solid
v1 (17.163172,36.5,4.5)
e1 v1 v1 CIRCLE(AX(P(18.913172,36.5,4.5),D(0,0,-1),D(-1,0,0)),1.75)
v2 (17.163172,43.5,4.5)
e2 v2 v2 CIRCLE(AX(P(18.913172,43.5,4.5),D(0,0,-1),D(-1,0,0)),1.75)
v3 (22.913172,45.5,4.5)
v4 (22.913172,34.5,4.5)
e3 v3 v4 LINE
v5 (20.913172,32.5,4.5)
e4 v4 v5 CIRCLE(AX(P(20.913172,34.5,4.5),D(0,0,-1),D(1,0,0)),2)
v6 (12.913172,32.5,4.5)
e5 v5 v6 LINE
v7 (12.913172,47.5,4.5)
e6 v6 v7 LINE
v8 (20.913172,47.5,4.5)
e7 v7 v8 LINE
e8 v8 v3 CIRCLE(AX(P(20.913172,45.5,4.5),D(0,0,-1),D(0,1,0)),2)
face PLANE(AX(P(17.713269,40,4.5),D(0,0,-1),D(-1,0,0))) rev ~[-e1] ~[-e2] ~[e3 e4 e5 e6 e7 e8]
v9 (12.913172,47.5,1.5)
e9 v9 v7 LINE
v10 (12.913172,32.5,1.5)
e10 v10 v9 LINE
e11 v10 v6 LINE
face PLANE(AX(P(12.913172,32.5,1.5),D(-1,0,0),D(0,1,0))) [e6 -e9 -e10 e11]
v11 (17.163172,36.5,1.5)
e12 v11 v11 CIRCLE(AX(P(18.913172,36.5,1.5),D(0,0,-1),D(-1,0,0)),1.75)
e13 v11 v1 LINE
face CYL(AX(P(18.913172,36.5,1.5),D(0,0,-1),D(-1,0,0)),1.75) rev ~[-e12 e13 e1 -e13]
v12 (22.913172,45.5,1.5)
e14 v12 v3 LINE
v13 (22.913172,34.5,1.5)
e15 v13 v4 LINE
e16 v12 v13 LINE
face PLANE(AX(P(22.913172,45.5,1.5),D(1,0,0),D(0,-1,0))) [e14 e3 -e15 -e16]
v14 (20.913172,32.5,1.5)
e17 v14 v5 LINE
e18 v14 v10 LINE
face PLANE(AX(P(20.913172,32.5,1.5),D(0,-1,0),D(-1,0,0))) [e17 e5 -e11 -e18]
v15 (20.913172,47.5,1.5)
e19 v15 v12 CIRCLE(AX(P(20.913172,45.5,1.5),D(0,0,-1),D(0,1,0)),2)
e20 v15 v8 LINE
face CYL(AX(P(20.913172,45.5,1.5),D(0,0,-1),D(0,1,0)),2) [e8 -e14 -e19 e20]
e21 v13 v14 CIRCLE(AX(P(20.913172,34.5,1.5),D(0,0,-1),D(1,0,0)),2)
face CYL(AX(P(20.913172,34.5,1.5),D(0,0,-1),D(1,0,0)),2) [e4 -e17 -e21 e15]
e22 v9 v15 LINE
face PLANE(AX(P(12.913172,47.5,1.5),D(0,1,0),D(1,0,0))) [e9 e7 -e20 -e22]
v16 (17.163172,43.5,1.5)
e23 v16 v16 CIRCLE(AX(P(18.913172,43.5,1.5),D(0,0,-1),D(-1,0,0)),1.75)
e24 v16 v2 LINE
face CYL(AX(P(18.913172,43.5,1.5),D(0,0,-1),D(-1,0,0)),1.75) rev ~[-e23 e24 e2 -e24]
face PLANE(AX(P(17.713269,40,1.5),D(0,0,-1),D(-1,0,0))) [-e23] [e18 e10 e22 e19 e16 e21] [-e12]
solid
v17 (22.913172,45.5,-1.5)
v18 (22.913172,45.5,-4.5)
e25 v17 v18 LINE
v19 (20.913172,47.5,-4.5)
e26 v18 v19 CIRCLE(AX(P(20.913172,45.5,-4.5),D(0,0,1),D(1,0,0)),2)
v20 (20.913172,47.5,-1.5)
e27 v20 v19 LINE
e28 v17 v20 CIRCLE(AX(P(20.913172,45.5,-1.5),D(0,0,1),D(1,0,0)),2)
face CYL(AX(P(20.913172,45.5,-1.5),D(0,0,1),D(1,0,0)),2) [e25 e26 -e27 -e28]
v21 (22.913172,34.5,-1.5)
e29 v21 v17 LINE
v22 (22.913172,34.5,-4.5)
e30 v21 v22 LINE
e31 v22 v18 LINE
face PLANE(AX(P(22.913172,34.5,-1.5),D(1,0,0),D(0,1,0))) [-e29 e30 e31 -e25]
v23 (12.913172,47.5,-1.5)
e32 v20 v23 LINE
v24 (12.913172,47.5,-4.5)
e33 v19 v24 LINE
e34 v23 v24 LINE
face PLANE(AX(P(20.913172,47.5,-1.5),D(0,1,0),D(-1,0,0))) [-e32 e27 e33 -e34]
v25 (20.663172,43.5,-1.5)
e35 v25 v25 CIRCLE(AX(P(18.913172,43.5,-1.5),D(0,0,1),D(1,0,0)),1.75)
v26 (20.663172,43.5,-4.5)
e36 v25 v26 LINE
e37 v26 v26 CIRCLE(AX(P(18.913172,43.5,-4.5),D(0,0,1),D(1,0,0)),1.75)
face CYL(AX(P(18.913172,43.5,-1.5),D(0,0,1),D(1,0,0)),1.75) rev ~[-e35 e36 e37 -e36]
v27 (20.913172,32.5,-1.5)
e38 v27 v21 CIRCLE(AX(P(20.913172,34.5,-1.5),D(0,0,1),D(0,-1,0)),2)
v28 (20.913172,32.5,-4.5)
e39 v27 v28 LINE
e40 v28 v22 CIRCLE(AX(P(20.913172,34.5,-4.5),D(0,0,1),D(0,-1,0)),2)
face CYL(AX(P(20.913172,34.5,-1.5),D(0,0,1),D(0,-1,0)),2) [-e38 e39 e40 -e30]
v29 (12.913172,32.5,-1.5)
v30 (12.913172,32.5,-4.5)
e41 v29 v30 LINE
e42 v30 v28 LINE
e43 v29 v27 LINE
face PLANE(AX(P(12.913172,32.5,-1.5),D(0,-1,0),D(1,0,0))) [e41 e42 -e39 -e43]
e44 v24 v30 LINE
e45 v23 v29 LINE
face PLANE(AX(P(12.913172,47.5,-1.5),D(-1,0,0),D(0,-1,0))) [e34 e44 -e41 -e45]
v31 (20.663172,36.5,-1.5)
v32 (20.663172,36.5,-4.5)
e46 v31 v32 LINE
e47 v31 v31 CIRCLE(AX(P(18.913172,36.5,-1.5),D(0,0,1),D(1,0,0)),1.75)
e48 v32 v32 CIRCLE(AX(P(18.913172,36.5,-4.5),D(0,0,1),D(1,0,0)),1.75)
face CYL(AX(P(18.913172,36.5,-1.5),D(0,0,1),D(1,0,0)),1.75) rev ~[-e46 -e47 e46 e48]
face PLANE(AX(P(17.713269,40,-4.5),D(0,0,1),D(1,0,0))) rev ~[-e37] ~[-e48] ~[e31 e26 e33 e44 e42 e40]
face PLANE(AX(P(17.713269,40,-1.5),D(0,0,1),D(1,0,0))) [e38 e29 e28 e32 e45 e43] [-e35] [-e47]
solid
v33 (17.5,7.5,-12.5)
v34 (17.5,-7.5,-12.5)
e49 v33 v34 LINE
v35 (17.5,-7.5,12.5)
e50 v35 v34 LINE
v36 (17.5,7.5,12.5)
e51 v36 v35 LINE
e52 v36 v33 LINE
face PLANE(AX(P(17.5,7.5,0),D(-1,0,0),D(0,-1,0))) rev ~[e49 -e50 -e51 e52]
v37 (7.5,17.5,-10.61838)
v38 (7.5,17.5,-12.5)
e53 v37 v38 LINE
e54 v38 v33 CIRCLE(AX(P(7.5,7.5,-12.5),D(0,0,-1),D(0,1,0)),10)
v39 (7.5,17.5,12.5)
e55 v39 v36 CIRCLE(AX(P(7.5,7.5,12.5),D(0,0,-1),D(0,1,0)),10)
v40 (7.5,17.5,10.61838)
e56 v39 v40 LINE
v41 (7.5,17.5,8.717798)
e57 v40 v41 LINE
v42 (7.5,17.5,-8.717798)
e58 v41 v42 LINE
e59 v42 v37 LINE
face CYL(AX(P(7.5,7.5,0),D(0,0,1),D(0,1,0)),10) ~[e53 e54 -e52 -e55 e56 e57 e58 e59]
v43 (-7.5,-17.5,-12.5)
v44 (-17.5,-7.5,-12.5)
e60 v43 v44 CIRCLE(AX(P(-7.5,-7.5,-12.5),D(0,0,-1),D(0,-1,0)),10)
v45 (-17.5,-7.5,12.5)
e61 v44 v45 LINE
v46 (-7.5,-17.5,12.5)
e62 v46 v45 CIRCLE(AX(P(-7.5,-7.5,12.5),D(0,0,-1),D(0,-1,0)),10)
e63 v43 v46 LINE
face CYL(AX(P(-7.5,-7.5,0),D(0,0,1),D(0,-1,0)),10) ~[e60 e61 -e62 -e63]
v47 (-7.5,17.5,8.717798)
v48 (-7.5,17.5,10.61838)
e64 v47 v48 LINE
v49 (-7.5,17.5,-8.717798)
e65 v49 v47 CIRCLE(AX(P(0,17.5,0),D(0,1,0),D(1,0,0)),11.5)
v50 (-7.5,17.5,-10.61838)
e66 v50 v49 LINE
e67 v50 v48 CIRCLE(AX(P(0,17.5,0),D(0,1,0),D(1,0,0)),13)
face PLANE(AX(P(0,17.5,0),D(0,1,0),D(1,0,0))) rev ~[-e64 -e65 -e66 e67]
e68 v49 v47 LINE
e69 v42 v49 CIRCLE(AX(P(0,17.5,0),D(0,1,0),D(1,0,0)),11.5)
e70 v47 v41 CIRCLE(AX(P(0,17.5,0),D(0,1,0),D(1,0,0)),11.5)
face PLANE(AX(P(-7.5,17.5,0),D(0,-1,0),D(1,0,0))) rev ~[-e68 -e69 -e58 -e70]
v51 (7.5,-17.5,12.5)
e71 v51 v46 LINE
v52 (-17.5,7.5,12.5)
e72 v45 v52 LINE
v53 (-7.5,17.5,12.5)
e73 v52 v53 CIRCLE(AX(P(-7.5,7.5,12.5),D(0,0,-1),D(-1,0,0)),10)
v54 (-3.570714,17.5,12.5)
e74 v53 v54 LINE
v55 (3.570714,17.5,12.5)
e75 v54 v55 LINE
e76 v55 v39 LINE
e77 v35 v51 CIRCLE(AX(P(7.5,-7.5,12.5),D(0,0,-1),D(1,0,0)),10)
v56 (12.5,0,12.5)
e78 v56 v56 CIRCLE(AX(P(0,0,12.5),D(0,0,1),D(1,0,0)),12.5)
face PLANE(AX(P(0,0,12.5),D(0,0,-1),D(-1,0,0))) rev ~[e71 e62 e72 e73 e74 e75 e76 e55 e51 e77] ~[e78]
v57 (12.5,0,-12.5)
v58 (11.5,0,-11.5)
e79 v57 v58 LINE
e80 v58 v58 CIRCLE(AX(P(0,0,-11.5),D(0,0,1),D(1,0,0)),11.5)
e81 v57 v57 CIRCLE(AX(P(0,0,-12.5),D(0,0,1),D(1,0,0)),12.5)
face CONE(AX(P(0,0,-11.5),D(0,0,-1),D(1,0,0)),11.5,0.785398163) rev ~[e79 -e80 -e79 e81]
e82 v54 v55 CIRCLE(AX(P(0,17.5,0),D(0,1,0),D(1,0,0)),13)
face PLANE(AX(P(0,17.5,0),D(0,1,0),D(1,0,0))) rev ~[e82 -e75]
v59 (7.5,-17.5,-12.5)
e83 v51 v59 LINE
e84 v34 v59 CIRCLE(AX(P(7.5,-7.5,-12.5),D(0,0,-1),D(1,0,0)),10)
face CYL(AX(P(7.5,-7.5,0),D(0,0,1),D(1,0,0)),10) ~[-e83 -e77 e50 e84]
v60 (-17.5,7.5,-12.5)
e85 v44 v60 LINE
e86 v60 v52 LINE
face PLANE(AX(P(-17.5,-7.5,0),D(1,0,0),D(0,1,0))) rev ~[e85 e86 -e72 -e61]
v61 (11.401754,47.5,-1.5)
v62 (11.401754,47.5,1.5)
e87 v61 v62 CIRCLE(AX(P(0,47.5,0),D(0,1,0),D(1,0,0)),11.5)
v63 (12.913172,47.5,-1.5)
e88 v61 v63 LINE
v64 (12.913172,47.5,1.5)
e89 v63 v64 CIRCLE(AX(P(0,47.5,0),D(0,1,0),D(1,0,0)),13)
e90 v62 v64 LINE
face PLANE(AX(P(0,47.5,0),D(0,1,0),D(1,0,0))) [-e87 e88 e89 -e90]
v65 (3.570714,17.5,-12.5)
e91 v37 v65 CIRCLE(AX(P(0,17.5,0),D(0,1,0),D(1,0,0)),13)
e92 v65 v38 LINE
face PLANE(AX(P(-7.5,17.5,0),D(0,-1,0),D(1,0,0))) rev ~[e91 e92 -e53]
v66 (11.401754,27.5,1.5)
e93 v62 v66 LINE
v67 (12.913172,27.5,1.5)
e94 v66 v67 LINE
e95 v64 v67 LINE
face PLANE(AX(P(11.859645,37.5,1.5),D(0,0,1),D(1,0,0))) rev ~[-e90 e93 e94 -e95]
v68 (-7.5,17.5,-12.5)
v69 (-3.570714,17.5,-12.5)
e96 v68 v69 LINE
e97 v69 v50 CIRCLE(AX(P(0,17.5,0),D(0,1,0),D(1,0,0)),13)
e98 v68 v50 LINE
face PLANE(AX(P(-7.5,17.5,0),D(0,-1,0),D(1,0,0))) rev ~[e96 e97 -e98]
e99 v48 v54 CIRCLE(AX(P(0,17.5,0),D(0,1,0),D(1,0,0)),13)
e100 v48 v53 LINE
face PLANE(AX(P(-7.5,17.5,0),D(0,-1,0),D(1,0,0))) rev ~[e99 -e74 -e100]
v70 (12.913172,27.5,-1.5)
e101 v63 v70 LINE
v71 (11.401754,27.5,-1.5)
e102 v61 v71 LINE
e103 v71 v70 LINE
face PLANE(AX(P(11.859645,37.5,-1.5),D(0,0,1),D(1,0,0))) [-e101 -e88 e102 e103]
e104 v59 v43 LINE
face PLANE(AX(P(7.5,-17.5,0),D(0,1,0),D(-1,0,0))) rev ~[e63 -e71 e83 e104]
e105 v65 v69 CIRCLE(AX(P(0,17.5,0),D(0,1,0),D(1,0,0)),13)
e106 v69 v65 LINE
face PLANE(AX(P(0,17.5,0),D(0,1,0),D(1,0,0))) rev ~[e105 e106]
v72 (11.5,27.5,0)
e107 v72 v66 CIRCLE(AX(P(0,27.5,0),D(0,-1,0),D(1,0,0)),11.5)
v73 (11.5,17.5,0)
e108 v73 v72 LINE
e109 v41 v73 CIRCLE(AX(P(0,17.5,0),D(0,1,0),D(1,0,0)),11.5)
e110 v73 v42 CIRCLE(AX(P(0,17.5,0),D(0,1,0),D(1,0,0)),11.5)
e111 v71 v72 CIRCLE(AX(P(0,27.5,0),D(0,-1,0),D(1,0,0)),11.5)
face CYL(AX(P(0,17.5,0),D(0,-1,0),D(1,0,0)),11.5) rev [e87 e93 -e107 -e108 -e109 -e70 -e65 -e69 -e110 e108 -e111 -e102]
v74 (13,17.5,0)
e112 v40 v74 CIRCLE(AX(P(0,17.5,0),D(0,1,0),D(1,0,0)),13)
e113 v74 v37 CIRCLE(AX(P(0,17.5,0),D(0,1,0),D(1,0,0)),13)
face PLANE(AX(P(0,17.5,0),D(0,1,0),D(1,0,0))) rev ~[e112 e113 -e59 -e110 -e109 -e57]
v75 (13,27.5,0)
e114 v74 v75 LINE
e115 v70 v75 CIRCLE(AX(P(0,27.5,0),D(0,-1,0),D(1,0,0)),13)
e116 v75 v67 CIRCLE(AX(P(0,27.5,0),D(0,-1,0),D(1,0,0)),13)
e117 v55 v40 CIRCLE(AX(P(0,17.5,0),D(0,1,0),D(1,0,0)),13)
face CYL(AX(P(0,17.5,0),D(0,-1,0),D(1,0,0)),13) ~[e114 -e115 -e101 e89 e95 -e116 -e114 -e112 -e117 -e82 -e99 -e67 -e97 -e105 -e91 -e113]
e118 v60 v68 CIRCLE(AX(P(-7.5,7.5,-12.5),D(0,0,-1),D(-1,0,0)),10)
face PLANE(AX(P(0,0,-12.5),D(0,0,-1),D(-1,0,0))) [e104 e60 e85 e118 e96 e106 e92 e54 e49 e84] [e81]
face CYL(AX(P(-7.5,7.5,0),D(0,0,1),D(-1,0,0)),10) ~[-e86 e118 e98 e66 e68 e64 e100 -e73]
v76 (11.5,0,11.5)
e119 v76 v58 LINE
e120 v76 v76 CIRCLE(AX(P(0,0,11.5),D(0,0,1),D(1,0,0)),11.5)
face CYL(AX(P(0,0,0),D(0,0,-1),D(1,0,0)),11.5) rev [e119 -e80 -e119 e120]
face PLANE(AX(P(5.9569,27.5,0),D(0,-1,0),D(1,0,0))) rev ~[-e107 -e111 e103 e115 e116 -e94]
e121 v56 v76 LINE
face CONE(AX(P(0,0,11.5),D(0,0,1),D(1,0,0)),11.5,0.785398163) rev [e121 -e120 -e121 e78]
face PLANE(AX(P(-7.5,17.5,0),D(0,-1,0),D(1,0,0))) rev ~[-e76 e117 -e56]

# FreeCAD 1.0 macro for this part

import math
import FreeCAD as App
import Part
import Sketcher

V = App.Vector


def edges_at(feature, points):
    """Names of the edges that pass closest to the given points."""
    edges = feature.Shape.Edges
    near = lambda p: min(range(len(edges)), key=lambda i: edges[i].distToShape(Part.Vertex(*p))[0])
    return sorted({f"Edge{near(p) + 1}" for p in points})


def add_polygon(sketch, points):
    """Adds a closed chain of lines whose ends are joined by coincident constraints."""
    first, n = sketch.GeometryCount, len(points)
    for a, b in zip(points, points[1:] + points[:1]):
        sketch.addGeometry(Part.LineSegment(App.Vector(*a, 0), App.Vector(*b, 0)), False)
    for i in range(n):
        sketch.addConstraint(Sketcher.Constraint("Coincident", first + i, 2, first + (i + 1) % n, 1))

doc = App.newDocument("Part")
body = doc.addObject("PartDesign::Body", "Body")

sketch1 = body.newObject("Sketcher::SketchObject", "Sketch")
sketch1.AttachmentSupport = (doc.getObject("XY_Plane"), [""])
sketch1.MapMode = "FlatFace"
sketch1.addGeometry(Part.LineSegment(V(8, 18, 0), V(-8, 18, 0)), False)
sketch1.addGeometry(Part.ArcOfCircle(Part.Circle(V(-8, 8, 0), V(0, 0, 1), 10), math.radians(90), math.radians(180)), False)
sketch1.addGeometry(Part.LineSegment(V(-18, 8, 0), V(-18, -8, 0)), False)
sketch1.addGeometry(Part.ArcOfCircle(Part.Circle(V(-8, -8, 0), V(0, 0, 1), 10), math.radians(180), math.radians(270)), False)
sketch1.addGeometry(Part.LineSegment(V(-8, -18, 0), V(8, -18, 0)), False)
sketch1.addGeometry(Part.ArcOfCircle(Part.Circle(V(8, -8, 0), V(0, 0, 1), 10), math.radians(-90), math.radians(0)), False)
sketch1.addGeometry(Part.LineSegment(V(18, -8, 0), V(18, 8, 0)), False)
sketch1.addGeometry(Part.ArcOfCircle(Part.Circle(V(8, 8, 0), V(0, 0, 1), 10), math.radians(0), math.radians(90)), False)
sketch1.addGeometry(Part.Circle(V(0, 0, 0), V(0, 0, 1), 12), False)
sketch1.addConstraint(Sketcher.Constraint("Tangent", 0, 2, 1, 1))
sketch1.addConstraint(Sketcher.Constraint("Tangent", 1, 2, 2, 1))
sketch1.addConstraint(Sketcher.Constraint("Tangent", 2, 2, 3, 1))
sketch1.addConstraint(Sketcher.Constraint("Tangent", 3, 2, 4, 1))
sketch1.addConstraint(Sketcher.Constraint("Tangent", 4, 2, 5, 1))
sketch1.addConstraint(Sketcher.Constraint("Tangent", 5, 2, 6, 1))
sketch1.addConstraint(Sketcher.Constraint("Tangent", 6, 2, 7, 1))
sketch1.addConstraint(Sketcher.Constraint("Tangent", 7, 2, 0, 1))
sketch1.addConstraint(Sketcher.Constraint("Horizontal", 0))
sketch1.addConstraint(Sketcher.Constraint("Vertical", 2))
sketch1.addConstraint(Sketcher.Constraint("Horizontal", 4))
sketch1.addConstraint(Sketcher.Constraint("Vertical", 6))
sketch1.addConstraint(Sketcher.Constraint("Coincident", 8, 3, -1, 1))
sketch1.addConstraint(Sketcher.Constraint("Equal", 1, 3))
sketch1.addConstraint(Sketcher.Constraint("Equal", 3, 5))
sketch1.addConstraint(Sketcher.Constraint("Equal", 5, 7))
sketch1.addConstraint(Sketcher.Constraint("Symmetric", 1, 3, 5, 3, -1, 1))
sketch1.addConstraint(Sketcher.Constraint("Equal", 4, 2))
sketch1.addConstraint(Sketcher.Constraint("Diameter", 8, 23.0))
sketch1.addConstraint(Sketcher.Constraint("Radius", 1, 10.0))
sketch1.addConstraint(Sketcher.Constraint("DistanceX", 0, 2, 0, 1, 15.0))
pad1 = body.newObject("PartDesign::Pad", "Pad")
pad1.Profile = sketch1
pad1.Length = 25
pad1.Midplane = True

sketch2 = body.newObject("Sketcher::SketchObject", "Sketch001")
sketch2.AttachmentSupport = (doc.getObject("XZ_Plane"), [""])
sketch2.MapMode = "FlatFace"
sketch2.AttachmentOffset = App.Placement(V(0, 0, -17.5), App.Rotation())
sketch2.addGeometry(Part.Circle(V(0, 0, 0), V(0, 0, 1), 13), False)
sketch2.addGeometry(Part.Circle(V(0, 0, 0), V(0, 0, 1), 12), False)
sketch2.addConstraint(Sketcher.Constraint("Coincident", 0, 3, -1, 1))
sketch2.addConstraint(Sketcher.Constraint("Coincident", 1, 3, -1, 1))
sketch2.addConstraint(Sketcher.Constraint("Diameter", 0, 26.0))
sketch2.addConstraint(Sketcher.Constraint("Diameter", 1, 23.0))
pad2 = body.newObject("PartDesign::Pad", "Pad001")
pad2.Profile = sketch2
pad2.Length = 30
pad2.Reversed = True

sketch3 = body.newObject("Sketcher::SketchObject", "Sketch002")
sketch3.AttachmentSupport = (doc.getObject("XY_Plane"), [""])
sketch3.MapMode = "FlatFace"
add_polygon(sketch3, [(6, 48), (6, 28), (18, 28), (18, 48)])
sketch3.addConstraint(Sketcher.Constraint("Vertical", 0))
sketch3.addConstraint(Sketcher.Constraint("Horizontal", 1))
sketch3.addConstraint(Sketcher.Constraint("Vertical", 2))
sketch3.addConstraint(Sketcher.Constraint("Horizontal", 3))
sketch3.addConstraint(Sketcher.Constraint("DistanceY", 0, 2, 0, 1, 20.0))
sketch3.addConstraint(Sketcher.Constraint("DistanceY", -1, 1, 0, 2, 27.5))
sketch3.addConstraint(Sketcher.Constraint("DistanceX", 1, 1, 1, 2, 11.805492))
sketch3.addConstraint(Sketcher.Constraint("DistanceX", -1, 1, 0, 2, 5.9569))
pocket1 = body.newObject("PartDesign::Pocket", "Pocket")
pocket1.Profile = sketch3
pocket1.Length = 3
pocket1.Midplane = True
doc.recompute()

chamfer = body.newObject("PartDesign::Chamfer", "Chamfer")
chamfer.Base = (pocket1, edges_at(pocket1, [(-11.5, 0, -12.5), (-11.5, 0, 12.5)]))
chamfer.Size = 1
body2 = doc.addObject("PartDesign::Body", "Body001")

sketch4 = body2.newObject("Sketcher::SketchObject", "Sketch003")
sketch4.AttachmentSupport = (doc.getObject("XY_Plane001"), [""])
sketch4.MapMode = "FlatFace"
sketch4.AttachmentOffset = App.Placement(V(0, 0, 1.5), App.Rotation())
sketch4.addGeometry(Part.LineSegment(V(12.9, 47.5, 0), V(20.9, 47.5, 0)), False)
sketch4.addGeometry(Part.ArcOfCircle(Part.Circle(V(20.9, 45.5, 0), V(0, 0, 1), 2), math.radians(0), math.radians(90)), False)
sketch4.addGeometry(Part.LineSegment(V(22.9, 45.5, 0), V(22.9, 34.5, 0)), False)
sketch4.addGeometry(Part.ArcOfCircle(Part.Circle(V(20.9, 34.5, 0), V(0, 0, 1), 2), math.radians(-90), math.radians(0)), False)
sketch4.addGeometry(Part.LineSegment(V(20.9, 32.5, 0), V(12.9, 32.5, 0)), False)
sketch4.addGeometry(Part.LineSegment(V(12.9, 32.5, 0), V(12.9, 47.5, 0)), False)
sketch4.addGeometry(Part.Circle(V(18.9, 36.5, 0), V(0, 0, 1), 1.8), False)
sketch4.addGeometry(Part.Circle(V(18.9, 43.5, 0), V(0, 0, 1), 1.8), False)
sketch4.addConstraint(Sketcher.Constraint("Tangent", 0, 2, 1, 2))
sketch4.addConstraint(Sketcher.Constraint("Tangent", 1, 1, 2, 1))
sketch4.addConstraint(Sketcher.Constraint("Tangent", 2, 2, 3, 2))
sketch4.addConstraint(Sketcher.Constraint("Tangent", 3, 1, 4, 1))
sketch4.addConstraint(Sketcher.Constraint("Coincident", 4, 2, 5, 1))
sketch4.addConstraint(Sketcher.Constraint("Coincident", 5, 2, 0, 1))
sketch4.addConstraint(Sketcher.Constraint("Horizontal", 0))
sketch4.addConstraint(Sketcher.Constraint("Vertical", 2))
sketch4.addConstraint(Sketcher.Constraint("Horizontal", 4))
sketch4.addConstraint(Sketcher.Constraint("Vertical", 5))
sketch4.addConstraint(Sketcher.Constraint("Equal", 1, 3))
sketch4.addConstraint(Sketcher.Constraint("Equal", 6, 7))
sketch4.addConstraint(Sketcher.Constraint("Vertical", 6, 3, 7, 3))
sketch4.addConstraint(Sketcher.Constraint("Radius", 1, 2.0))
sketch4.addConstraint(Sketcher.Constraint("Diameter", 6, 3.5))
sketch4.addConstraint(Sketcher.Constraint("DistanceX", 0, 1, 0, 2, 8.0))
sketch4.addConstraint(Sketcher.Constraint("DistanceY", 2, 2, 2, 1, 11.0))
sketch4.addConstraint(Sketcher.Constraint("DistanceX", 6, 3, 3, 3, 2.0))
sketch4.addConstraint(Sketcher.Constraint("DistanceY", 3, 3, 6, 3, 2.0))
sketch4.addConstraint(Sketcher.Constraint("DistanceY", 7, 3, 1, 3, 2.0))
sketch4.addConstraint(Sketcher.Constraint("DistanceY", -1, 1, 1, 3, 45.5))
sketch4.addConstraint(Sketcher.Constraint("DistanceX", -1, 1, 1, 3, 20.913172))
pad3 = body2.newObject("PartDesign::Pad", "Pad002")
pad3.Profile = sketch4
pad3.Length = 3
body3 = doc.addObject("PartDesign::Body", "Body002")

sketch5 = body3.newObject("Sketcher::SketchObject", "Sketch004")
sketch5.AttachmentSupport = (doc.getObject("XY_Plane002"), [""])
sketch5.MapMode = "FlatFace"
sketch5.AttachmentOffset = App.Placement(V(0, 0, -1.5), App.Rotation())
sketch5.addGeometry(Part.LineSegment(V(12.9, 47.5, 0), V(12.9, 32.5, 0)), False)
sketch5.addGeometry(Part.LineSegment(V(12.9, 32.5, 0), V(20.9, 32.5, 0)), False)
sketch5.addGeometry(Part.ArcOfCircle(Part.Circle(V(20.9, 34.5, 0), V(0, 0, 1), 2), math.radians(-90), math.radians(0)), False)
sketch5.addGeometry(Part.LineSegment(V(22.9, 34.5, 0), V(22.9, 45.5, 0)), False)
sketch5.addGeometry(Part.ArcOfCircle(Part.Circle(V(20.9, 45.5, 0), V(0, 0, 1), 2), math.radians(0), math.radians(90)), False)
sketch5.addGeometry(Part.LineSegment(V(20.9, 47.5, 0), V(12.9, 47.5, 0)), False)
sketch5.addGeometry(Part.Circle(V(18.9, 36.5, 0), V(0, 0, 1), 1.8), False)
sketch5.addGeometry(Part.Circle(V(18.9, 43.5, 0), V(0, 0, 1), 1.8), False)
sketch5.addConstraint(Sketcher.Constraint("Coincident", 0, 2, 1, 1))
sketch5.addConstraint(Sketcher.Constraint("Tangent", 1, 2, 2, 1))
sketch5.addConstraint(Sketcher.Constraint("Tangent", 2, 2, 3, 1))
sketch5.addConstraint(Sketcher.Constraint("Tangent", 3, 2, 4, 1))
sketch5.addConstraint(Sketcher.Constraint("Tangent", 4, 2, 5, 1))
sketch5.addConstraint(Sketcher.Constraint("Coincident", 5, 2, 0, 1))
sketch5.addConstraint(Sketcher.Constraint("Vertical", 0))
sketch5.addConstraint(Sketcher.Constraint("Horizontal", 1))
sketch5.addConstraint(Sketcher.Constraint("Vertical", 3))
sketch5.addConstraint(Sketcher.Constraint("Horizontal", 5))
sketch5.addConstraint(Sketcher.Constraint("Equal", 2, 4))
sketch5.addConstraint(Sketcher.Constraint("Equal", 6, 7))
sketch5.addConstraint(Sketcher.Constraint("Vertical", 6, 3, 7, 3))
sketch5.addConstraint(Sketcher.Constraint("Radius", 2, 2.0))
sketch5.addConstraint(Sketcher.Constraint("Diameter", 6, 3.5))
sketch5.addConstraint(Sketcher.Constraint("DistanceX", 1, 1, 1, 2, 8.0))
sketch5.addConstraint(Sketcher.Constraint("DistanceY", 0, 2, 0, 1, 15.0))
sketch5.addConstraint(Sketcher.Constraint("DistanceX", 6, 3, 2, 3, 2.0))
sketch5.addConstraint(Sketcher.Constraint("DistanceY", 2, 3, 6, 3, 2.0))
sketch5.addConstraint(Sketcher.Constraint("DistanceY", 7, 3, 4, 3, 2.0))
sketch5.addConstraint(Sketcher.Constraint("DistanceY", -1, 1, 2, 3, 34.5))
sketch5.addConstraint(Sketcher.Constraint("DistanceX", -1, 1, 2, 3, 20.913172))
pad4 = body3.newObject("PartDesign::Pad", "Pad003")
pad4.Profile = sketch5
pad4.Length = 3
pad4.Reversed = True

doc.recompute()
